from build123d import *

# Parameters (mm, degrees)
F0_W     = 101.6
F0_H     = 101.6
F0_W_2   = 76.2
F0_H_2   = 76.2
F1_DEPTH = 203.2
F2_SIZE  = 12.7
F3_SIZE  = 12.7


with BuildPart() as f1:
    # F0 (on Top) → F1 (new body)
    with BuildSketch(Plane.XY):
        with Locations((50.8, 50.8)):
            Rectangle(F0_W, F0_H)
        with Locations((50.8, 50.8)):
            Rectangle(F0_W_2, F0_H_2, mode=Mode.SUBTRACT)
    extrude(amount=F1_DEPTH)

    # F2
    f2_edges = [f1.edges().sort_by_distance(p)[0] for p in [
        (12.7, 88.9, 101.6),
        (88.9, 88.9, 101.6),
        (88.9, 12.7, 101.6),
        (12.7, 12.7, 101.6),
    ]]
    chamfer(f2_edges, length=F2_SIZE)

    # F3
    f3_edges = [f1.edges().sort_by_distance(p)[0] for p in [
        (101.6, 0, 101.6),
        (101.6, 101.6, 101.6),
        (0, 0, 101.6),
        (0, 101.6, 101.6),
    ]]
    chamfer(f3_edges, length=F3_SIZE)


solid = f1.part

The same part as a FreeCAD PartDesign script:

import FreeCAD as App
import Part
import Sketcher
from FreeCAD import Vector
Q = App.Units.Quantity


def edges_at(feature, points):
    """Names of the edges that pass closest to the given points."""
    edges = feature.Shape.Edges
    near = lambda p: min(range(len(edges)), key=lambda i: edges[i].distToShape(Part.Vertex(*p))[0])
    return sorted({f"Edge{near(p) + 1}" for p in points})


def add_polygon(sketch, points):
    """Adds a closed chain of lines whose ends are joined by coincident constraints."""
    first, n = sketch.GeometryCount, len(points)
    for a, b in zip(points, points[1:] + points[:1]):
        sketch.addGeometry(Part.LineSegment(App.Vector(*a, 0), App.Vector(*b, 0)), False)
    for i in range(n):
        sketch.addConstraint(Sketcher.Constraint("Coincident", first + i, 2, first + (i + 1) % n, 1))

doc = App.newDocument("Part")
body = doc.addObject("PartDesign::Body", "Body")

sketch1 = doc.addObject("Sketcher::SketchObject", "Sketch")
body.addObject(sketch1)
sketch1.AttachmentSupport = (doc.XY_Plane, [""])
sketch1.MapMode = "FlatFace"
add_polygon(sketch1, [(0, 101.6), (0, 0), (101.6, 0), (101.6, 101.6)])
add_polygon(sketch1, [(88.9, 12.7), (12.7, 12.7), (12.7, 88.9), (88.9, 88.9)])
sketch1.addConstraint(Sketcher.Constraint("Vertical", 0))
sketch1.addConstraint(Sketcher.Constraint("Horizontal", 1))
sketch1.addConstraint(Sketcher.Constraint("Vertical", 2))
sketch1.addConstraint(Sketcher.Constraint("Horizontal", 3))
sketch1.addConstraint(Sketcher.Constraint("Horizontal", 4))
sketch1.addConstraint(Sketcher.Constraint("Vertical", 5))
sketch1.addConstraint(Sketcher.Constraint("Horizontal", 6))
sketch1.addConstraint(Sketcher.Constraint("Vertical", 7))
sketch1.addConstraint(Sketcher.Constraint("Coincident", 0, 2, -1, 1))
sketch1.addConstraint(Sketcher.Constraint("Equal", 3, 0))
sketch1.addConstraint(Sketcher.Constraint("Equal", 6, 5))
sketch1.addConstraint(Sketcher.Constraint("DistanceX", 1, 1, 1, 2, Q("4 in")))
sketch1.addConstraint(Sketcher.Constraint("DistanceX", 4, 2, 4, 1, Q("3 in")))
sketch1.addConstraint(Sketcher.Constraint("DistanceX", -1, 1, 4, 2, Q("0.5 in")))
sketch1.addConstraint(Sketcher.Constraint("DistanceY", -1, 1, 4, 2, Q("0.5 in")))
pad1 = doc.addObject("PartDesign::Pad", "Pad")
body.addObject(pad1)
pad1.Profile = sketch1
pad1.Length = Q("8 in")
doc.recompute()

chamfer = doc.addObject("PartDesign::Chamfer", "Chamfer")
body.addObject(chamfer)
chamfer.Base = (pad1, edges_at(pad1, [
    (12.7, 88.9, 101.6),
    (88.9, 88.9, 101.6),
    (88.9, 12.7, 101.6),
    (12.7, 12.7, 101.6),
]))
chamfer.Size = Q("0.5 in")
doc.recompute()

chamfer2 = doc.addObject("PartDesign::Chamfer", "Chamfer001")
body.addObject(chamfer2)
chamfer2.Base = (chamfer, edges_at(chamfer, [
    (101.6, 0, 101.6),
    (101.6, 101.6, 101.6),
    (0, 0, 101.6),
    (0, 101.6, 101.6),
]))
chamfer2.Size = Q("0.5 in")

doc.recompute()
